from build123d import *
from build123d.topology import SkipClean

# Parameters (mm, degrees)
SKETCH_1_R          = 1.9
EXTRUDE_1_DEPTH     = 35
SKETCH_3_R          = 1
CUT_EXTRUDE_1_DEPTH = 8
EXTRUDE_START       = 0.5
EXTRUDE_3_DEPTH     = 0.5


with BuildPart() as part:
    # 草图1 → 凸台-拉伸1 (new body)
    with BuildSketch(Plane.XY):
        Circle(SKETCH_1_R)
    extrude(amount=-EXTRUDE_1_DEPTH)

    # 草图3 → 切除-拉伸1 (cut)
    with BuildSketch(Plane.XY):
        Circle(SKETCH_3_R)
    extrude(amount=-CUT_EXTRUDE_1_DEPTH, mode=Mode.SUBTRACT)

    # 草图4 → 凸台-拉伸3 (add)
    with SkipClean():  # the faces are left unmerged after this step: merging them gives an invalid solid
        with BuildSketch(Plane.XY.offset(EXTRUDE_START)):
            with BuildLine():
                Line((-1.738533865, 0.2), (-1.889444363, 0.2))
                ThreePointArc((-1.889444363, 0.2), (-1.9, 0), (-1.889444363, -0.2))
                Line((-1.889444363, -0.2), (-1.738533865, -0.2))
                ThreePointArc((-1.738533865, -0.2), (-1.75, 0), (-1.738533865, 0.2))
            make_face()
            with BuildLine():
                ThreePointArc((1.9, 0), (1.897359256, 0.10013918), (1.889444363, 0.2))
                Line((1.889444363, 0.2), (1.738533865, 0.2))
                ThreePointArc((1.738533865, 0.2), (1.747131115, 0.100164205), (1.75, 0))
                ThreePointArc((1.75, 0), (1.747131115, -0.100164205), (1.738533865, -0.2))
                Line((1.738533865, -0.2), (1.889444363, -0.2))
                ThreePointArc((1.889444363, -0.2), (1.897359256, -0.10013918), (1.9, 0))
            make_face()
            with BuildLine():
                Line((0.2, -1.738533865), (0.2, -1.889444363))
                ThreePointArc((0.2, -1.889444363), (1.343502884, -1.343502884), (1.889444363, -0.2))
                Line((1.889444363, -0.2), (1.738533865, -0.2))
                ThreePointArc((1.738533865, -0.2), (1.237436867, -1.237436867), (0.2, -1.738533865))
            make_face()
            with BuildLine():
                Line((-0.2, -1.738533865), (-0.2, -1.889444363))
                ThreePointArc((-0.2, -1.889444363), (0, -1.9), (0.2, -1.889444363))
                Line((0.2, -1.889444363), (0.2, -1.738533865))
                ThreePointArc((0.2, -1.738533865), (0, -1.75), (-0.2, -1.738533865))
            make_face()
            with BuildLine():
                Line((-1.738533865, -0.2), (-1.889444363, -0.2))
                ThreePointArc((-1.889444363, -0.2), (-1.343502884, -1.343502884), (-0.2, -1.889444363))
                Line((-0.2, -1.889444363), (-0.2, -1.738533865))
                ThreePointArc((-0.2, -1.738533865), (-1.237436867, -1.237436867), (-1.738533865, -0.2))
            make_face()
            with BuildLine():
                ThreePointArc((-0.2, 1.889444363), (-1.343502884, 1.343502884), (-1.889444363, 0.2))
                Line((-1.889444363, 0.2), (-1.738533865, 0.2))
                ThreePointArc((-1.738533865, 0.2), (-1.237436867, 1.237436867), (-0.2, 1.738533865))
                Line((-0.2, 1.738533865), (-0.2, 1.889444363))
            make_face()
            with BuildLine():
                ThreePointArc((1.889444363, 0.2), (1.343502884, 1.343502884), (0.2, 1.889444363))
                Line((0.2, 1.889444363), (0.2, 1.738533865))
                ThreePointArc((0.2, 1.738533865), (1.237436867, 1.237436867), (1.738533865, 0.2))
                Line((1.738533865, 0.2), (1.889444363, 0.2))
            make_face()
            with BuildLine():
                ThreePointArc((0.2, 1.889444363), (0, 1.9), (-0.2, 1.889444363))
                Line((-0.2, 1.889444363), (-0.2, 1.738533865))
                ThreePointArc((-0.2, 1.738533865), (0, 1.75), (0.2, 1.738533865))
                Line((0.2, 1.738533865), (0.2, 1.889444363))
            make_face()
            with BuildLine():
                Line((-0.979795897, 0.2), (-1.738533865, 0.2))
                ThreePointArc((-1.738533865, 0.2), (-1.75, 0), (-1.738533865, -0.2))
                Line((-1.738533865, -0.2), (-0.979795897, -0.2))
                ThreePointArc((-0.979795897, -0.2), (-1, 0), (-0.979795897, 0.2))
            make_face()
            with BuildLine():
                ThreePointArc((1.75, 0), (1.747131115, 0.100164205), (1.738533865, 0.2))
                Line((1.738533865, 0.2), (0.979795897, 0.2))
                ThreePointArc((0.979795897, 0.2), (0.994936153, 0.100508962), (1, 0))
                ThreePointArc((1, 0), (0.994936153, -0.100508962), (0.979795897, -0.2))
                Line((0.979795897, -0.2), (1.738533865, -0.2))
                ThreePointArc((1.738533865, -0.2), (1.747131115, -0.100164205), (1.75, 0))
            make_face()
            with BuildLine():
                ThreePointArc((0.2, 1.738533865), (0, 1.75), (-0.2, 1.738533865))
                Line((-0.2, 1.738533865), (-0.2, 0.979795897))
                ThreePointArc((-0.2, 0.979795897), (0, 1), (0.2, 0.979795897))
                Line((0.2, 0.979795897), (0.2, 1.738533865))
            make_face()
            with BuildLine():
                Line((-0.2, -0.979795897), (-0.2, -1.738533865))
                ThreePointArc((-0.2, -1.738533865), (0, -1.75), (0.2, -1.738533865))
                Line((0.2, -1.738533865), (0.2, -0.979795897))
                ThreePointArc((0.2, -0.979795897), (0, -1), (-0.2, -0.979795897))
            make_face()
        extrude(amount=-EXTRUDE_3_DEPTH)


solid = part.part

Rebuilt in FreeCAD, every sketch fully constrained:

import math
import FreeCAD as App
import Part
import Sketcher
from FreeCAD import Vector
Q = App.Units.Quantity

doc = App.newDocument("Part")
body = doc.addObject("PartDesign::Body", "Body")

# Sketch on XY plane
sketch1 = body.newObject("Sketcher::SketchObject", "Sketch")
sketch1.AttachmentSupport = (doc.getObject("XY_Plane"), [""])
sketch1.MapMode = "FlatFace"
sketch1.addGeometry(Part.Circle(Vector(0, 0, 0), Vector(0, 0, 1), 1.9), False)
sketch1.addConstraint(Sketcher.Constraint("Coincident", 0, 3, -1, 1))
sketch1.addConstraint(Sketcher.Constraint("Diameter", 0, Q("3.8 mm")))
pad1 = body.newObject("PartDesign::Pad", "Pad")
pad1.Profile = sketch1
pad1.Length = 35
pad1.Reversed = True

# Sketch on XY plane
sketch2 = body.newObject("Sketcher::SketchObject", "Sketch001")
sketch2.AttachmentSupport = (doc.getObject("XY_Plane"), [""])
sketch2.MapMode = "FlatFace"
sketch2.addGeometry(Part.Circle(Vector(0, 0, 0), Vector(0, 0, 1), 1), False)
sketch2.addConstraint(Sketcher.Constraint("Coincident", 0, 3, -1, 1))
sketch2.addConstraint(Sketcher.Constraint("Diameter", 0, Q("2 mm")))
pocket1 = body.newObject("PartDesign::Pocket", "Pocket")
pocket1.Profile = sketch2
pocket1.Length = 8

# Sketch on XY plane
sketch3 = body.newObject("Sketcher::SketchObject", "Sketch002")
sketch3.AttachmentSupport = (doc.getObject("XY_Plane"), [""])
sketch3.MapMode = "FlatFace"
sketch3.AttachmentOffset = App.Placement(Vector(0, 0, 0.5), App.Rotation())
sketch3.addGeometry(Part.LineSegment(Vector(-1.74, 0.2, 0), Vector(-1.89, 0.2, 0)), False)
sketch3.addGeometry(Part.ArcOfCircle(Part.Circle(Vector(0, 0, 0), Vector(0, 0, 1), 1.9), math.radians(173.96), math.radians(186.04)), False)
sketch3.addGeometry(Part.LineSegment(Vector(-1.89, -0.2, 0), Vector(-1.74, -0.2, 0)), False)
sketch3.addGeometry(Part.ArcOfCircle(Part.Circle(Vector(0, 0, 0), Vector(0, 0, 1), 1.75), math.radians(173.44), math.radians(186.56)), False)
sketch3.addGeometry(Part.ArcOfCircle(Part.Circle(Vector(0, 0, 0), Vector(0, 0, 1), 1.9), math.radians(0), math.radians(6.04)), False)
sketch3.addGeometry(Part.LineSegment(Vector(1.89, 0.2, 0), Vector(1.74, 0.2, 0)), False)
sketch3.addGeometry(Part.ArcOfCircle(Part.Circle(Vector(0, 0, 0), Vector(0, 0, 1), 1.75), math.radians(0), math.radians(6.56)), False)
sketch3.addGeometry(Part.ArcOfCircle(Part.Circle(Vector(0, 0, 0), Vector(0, 0, 1), 1.75), math.radians(-6.56), math.radians(0)), False)
sketch3.addGeometry(Part.LineSegment(Vector(1.74, -0.2, 0), Vector(1.89, -0.2, 0)), False)
sketch3.addGeometry(Part.ArcOfCircle(Part.Circle(Vector(0, 0, 0), Vector(0, 0, 1), 1.9), math.radians(-6.04), math.radians(0)), False)
sketch3.addGeometry(Part.LineSegment(Vector(0.2, -1.74, 0), Vector(0.2, -1.89, 0)), False)
sketch3.addGeometry(Part.ArcOfCircle(Part.Circle(Vector(0, 0, 0), Vector(0, 0, 1), 1.9), math.radians(-84), math.radians(-6)), False)
sketch3.addGeometry(Part.LineSegment(Vector(1.89, -0.2, 0), Vector(1.74, -0.2, 0)), False)
sketch3.addGeometry(Part.ArcOfCircle(Part.Circle(Vector(0, 0, 0), Vector(0, 0, 1), 1.75), math.radians(-83), math.radians(-7)), False)
sketch3.addGeometry(Part.LineSegment(Vector(-0.2, -1.74, 0), Vector(-0.2, -1.89, 0)), False)
sketch3.addGeometry(Part.ArcOfCircle(Part.Circle(Vector(0, 0, 0), Vector(0, 0, 1), 1.9), math.radians(-96.04), math.radians(-83.96)), False)
sketch3.addGeometry(Part.LineSegment(Vector(0.2, -1.89, 0), Vector(0.2, -1.74, 0)), False)
sketch3.addGeometry(Part.ArcOfCircle(Part.Circle(Vector(0, 0, 0), Vector(0, 0, 1), 1.75), math.radians(-96.56), math.radians(-83.44)), False)
sketch3.addGeometry(Part.LineSegment(Vector(-1.74, -0.2, 0), Vector(-1.89, -0.2, 0)), False)
sketch3.addGeometry(Part.ArcOfCircle(Part.Circle(Vector(0, 0, 0), Vector(0, 0, 1), 1.9), math.radians(-174), math.radians(-96)), False)
sketch3.addGeometry(Part.LineSegment(Vector(-0.2, -1.89, 0), Vector(-0.2, -1.74, 0)), False)
sketch3.addGeometry(Part.ArcOfCircle(Part.Circle(Vector(0, 0, 0), Vector(0, 0, 1), 1.75), math.radians(-173), math.radians(-97)), False)
sketch3.addGeometry(Part.ArcOfCircle(Part.Circle(Vector(0, 0, 0), Vector(0, 0, 1), 1.9), math.radians(96), math.radians(174)), False)
sketch3.addGeometry(Part.LineSegment(Vector(-1.89, 0.2, 0), Vector(-1.74, 0.2, 0)), False)
sketch3.addGeometry(Part.ArcOfCircle(Part.Circle(Vector(0, 0, 0), Vector(0, 0, 1), 1.75), math.radians(97), math.radians(173)), False)
sketch3.addGeometry(Part.LineSegment(Vector(-0.2, 1.74, 0), Vector(-0.2, 1.89, 0)), False)
sketch3.addGeometry(Part.ArcOfCircle(Part.Circle(Vector(0, 0, 0), Vector(0, 0, 1), 1.9), math.radians(6), math.radians(84)), False)
sketch3.addGeometry(Part.LineSegment(Vector(0.2, 1.89, 0), Vector(0.2, 1.74, 0)), False)
sketch3.addGeometry(Part.ArcOfCircle(Part.Circle(Vector(0, 0, 0), Vector(0, 0, 1), 1.75), math.radians(7), math.radians(83)), False)
sketch3.addGeometry(Part.LineSegment(Vector(1.74, 0.2, 0), Vector(1.89, 0.2, 0)), False)
sketch3.addGeometry(Part.ArcOfCircle(Part.Circle(Vector(0, 0, 0), Vector(0, 0, 1), 1.9), math.radians(83.96), math.radians(96.04)), False)
sketch3.addGeometry(Part.LineSegment(Vector(-0.2, 1.89, 0), Vector(-0.2, 1.74, 0)), False)
sketch3.addGeometry(Part.ArcOfCircle(Part.Circle(Vector(0, 0, 0), Vector(0, 0, 1), 1.75), math.radians(83.44), math.radians(96.56)), False)
sketch3.addGeometry(Part.LineSegment(Vector(0.2, 1.74, 0), Vector(0.2, 1.89, 0)), False)
sketch3.addGeometry(Part.LineSegment(Vector(-0.98, 0.2, 0), Vector(-1.74, 0.2, 0)), False)
sketch3.addGeometry(Part.ArcOfCircle(Part.Circle(Vector(0, 0, 0), Vector(0, 0, 1), 1.75), math.radians(173.44), math.radians(186.56)), False)
sketch3.addGeometry(Part.LineSegment(Vector(-1.74, -0.2, 0), Vector(-0.98, -0.2, 0)), False)
sketch3.addGeometry(Part.ArcOfCircle(Part.Circle(Vector(0, 0, 0), Vector(0, 0, 1), 1), math.radians(168), math.radians(192)), False)
sketch3.addGeometry(Part.ArcOfCircle(Part.Circle(Vector(0, 0, 0), Vector(0, 0, 1), 1.75), math.radians(0), math.radians(6.56)), False)
sketch3.addGeometry(Part.LineSegment(Vector(1.74, 0.2, 0), Vector(0.98, 0.2, 0)), False)
sketch3.addGeometry(Part.ArcOfCircle(Part.Circle(Vector(0, 0, 0), Vector(0, 0, 1), 1), math.radians(0), math.radians(11.54)), False)
sketch3.addGeometry(Part.ArcOfCircle(Part.Circle(Vector(0, 0, 0), Vector(0, 0, 1), 1), math.radians(-11.54), math.radians(0)), False)
sketch3.addGeometry(Part.LineSegment(Vector(0.98, -0.2, 0), Vector(1.74, -0.2, 0)), False)
sketch3.addGeometry(Part.ArcOfCircle(Part.Circle(Vector(0, 0, 0), Vector(0, 0, 1), 1.75), math.radians(-6.56), math.radians(0)), False)
sketch3.addGeometry(Part.ArcOfCircle(Part.Circle(Vector(0, 0, 0), Vector(0, 0, 1), 1.75), math.radians(83.44), math.radians(96.56)), False)
sketch3.addGeometry(Part.LineSegment(Vector(-0.2, 1.74, 0), Vector(-0.2, 0.98, 0)), False)
sketch3.addGeometry(Part.ArcOfCircle(Part.Circle(Vector(0, 0, 0), Vector(0, 0, 1), 1), math.radians(78), math.radians(102)), False)
sketch3.addGeometry(Part.LineSegment(Vector(0.2, 0.98, 0), Vector(0.2, 1.74, 0)), False)
sketch3.addGeometry(Part.LineSegment(Vector(-0.2, -0.98, 0), Vector(-0.2, -1.74, 0)), False)
sketch3.addGeometry(Part.ArcOfCircle(Part.Circle(Vector(0, 0, 0), Vector(0, 0, 1), 1.75), math.radians(-96.56), math.radians(-83.44)), False)
sketch3.addGeometry(Part.LineSegment(Vector(0.2, -1.74, 0), Vector(0.2, -0.98, 0)), False)
sketch3.addGeometry(Part.ArcOfCircle(Part.Circle(Vector(0, 0, 0), Vector(0, 0, 1), 1), math.radians(-102), math.radians(-78)), False)
sketch3.addConstraint(Sketcher.Constraint("Coincident", 0, 2, 1, 1))
sketch3.addConstraint(Sketcher.Constraint("Coincident", 1, 2, 2, 1))
sketch3.addConstraint(Sketcher.Constraint("Coincident", 2, 2, 3, 2))
sketch3.addConstraint(Sketcher.Constraint("Coincident", 3, 1, 0, 1))
sketch3.addConstraint(Sketcher.Constraint("Coincident", 4, 2, 5, 1))
sketch3.addConstraint(Sketcher.Constraint("Coincident", 5, 2, 6, 2))
sketch3.addConstraint(Sketcher.Constraint("Tangent", 6, 1, 7, 2))
sketch3.addConstraint(Sketcher.Constraint("Coincident", 7, 1, 8, 1))
sketch3.addConstraint(Sketcher.Constraint("Coincident", 8, 2, 9, 1))
sketch3.addConstraint(Sketcher.Constraint("Tangent", 9, 2, 4, 1))
sketch3.addConstraint(Sketcher.Constraint("Coincident", 10, 2, 11, 1))
sketch3.addConstraint(Sketcher.Constraint("Coincident", 11, 2, 12, 1))
sketch3.addConstraint(Sketcher.Constraint("Coincident", 12, 2, 13, 2))
sketch3.addConstraint(Sketcher.Constraint("Coincident", 13, 1, 10, 1))
sketch3.addConstraint(Sketcher.Constraint("Coincident", 14, 2, 15, 1))
sketch3.addConstraint(Sketcher.Constraint("Coincident", 15, 2, 16, 1))
sketch3.addConstraint(Sketcher.Constraint("Coincident", 16, 2, 17, 2))
sketch3.addConstraint(Sketcher.Constraint("Coincident", 17, 1, 14, 1))
sketch3.addConstraint(Sketcher.Constraint("Coincident", 18, 2, 19, 1))
sketch3.addConstraint(Sketcher.Constraint("Coincident", 19, 2, 20, 1))
sketch3.addConstraint(Sketcher.Constraint("Coincident", 20, 2, 21, 2))
sketch3.addConstraint(Sketcher.Constraint("Coincident", 21, 1, 18, 1))
sketch3.addConstraint(Sketcher.Constraint("Coincident", 22, 2, 23, 1))
sketch3.addConstraint(Sketcher.Constraint("Coincident", 23, 2, 24, 2))
sketch3.addConstraint(Sketcher.Constraint("Coincident", 24, 1, 25, 1))
sketch3.addConstraint(Sketcher.Constraint("Coincident", 25, 2, 22, 1))
sketch3.addConstraint(Sketcher.Constraint("Coincident", 26, 2, 27, 1))
sketch3.addConstraint(Sketcher.Constraint("Coincident", 27, 2, 28, 2))
sketch3.addConstraint(Sketcher.Constraint("Coincident", 28, 1, 29, 1))
sketch3.addConstraint(Sketcher.Constraint("Coincident", 29, 2, 26, 1))
sketch3.addConstraint(Sketcher.Constraint("Coincident", 30, 2, 31, 1))
sketch3.addConstraint(Sketcher.Constraint("Coincident", 31, 2, 32, 2))
sketch3.addConstraint(Sketcher.Constraint("Coincident", 32, 1, 33, 1))
sketch3.addConstraint(Sketcher.Constraint("Coincident", 33, 2, 30, 1))
sketch3.addConstraint(Sketcher.Constraint("Coincident", 34, 2, 35, 1))
sketch3.addConstraint(Sketcher.Constraint("Coincident", 35, 2, 36, 1))
sketch3.addConstraint(Sketcher.Constraint("Coincident", 36, 2, 37, 2))
sketch3.addConstraint(Sketcher.Constraint("Coincident", 37, 1, 34, 1))
sketch3.addConstraint(Sketcher.Constraint("Coincident", 38, 2, 39, 1))
sketch3.addConstraint(Sketcher.Constraint("Coincident", 39, 2, 40, 2))
sketch3.addConstraint(Sketcher.Constraint("Tangent", 40, 1, 41, 2))
sketch3.addConstraint(Sketcher.Constraint("Coincident", 41, 1, 42, 1))
sketch3.addConstraint(Sketcher.Constraint("Coincident", 42, 2, 43, 1))
sketch3.addConstraint(Sketcher.Constraint("Tangent", 43, 2, 38, 1))
sketch3.addConstraint(Sketcher.Constraint("Coincident", 44, 2, 45, 1))
sketch3.addConstraint(Sketcher.Constraint("Coincident", 45, 2, 46, 2))
sketch3.addConstraint(Sketcher.Constraint("Coincident", 46, 1, 47, 1))
sketch3.addConstraint(Sketcher.Constraint("Coincident", 47, 2, 44, 1))
sketch3.addConstraint(Sketcher.Constraint("Coincident", 48, 2, 49, 1))
sketch3.addConstraint(Sketcher.Constraint("Coincident", 49, 2, 50, 1))
sketch3.addConstraint(Sketcher.Constraint("Coincident", 50, 2, 51, 2))
sketch3.addConstraint(Sketcher.Constraint("Coincident", 51, 1, 48, 1))
sketch3.addConstraint(Sketcher.Constraint("Horizontal", 0))
sketch3.addConstraint(Sketcher.Constraint("Horizontal", 2))
sketch3.addConstraint(Sketcher.Constraint("Horizontal", 5))
sketch3.addConstraint(Sketcher.Constraint("Horizontal", 8))
sketch3.addConstraint(Sketcher.Constraint("Vertical", 10))
sketch3.addConstraint(Sketcher.Constraint("Horizontal", 12))
sketch3.addConstraint(Sketcher.Constraint("Vertical", 14))
sketch3.addConstraint(Sketcher.Constraint("Vertical", 16))
sketch3.addConstraint(Sketcher.Constraint("Horizontal", 18))
sketch3.addConstraint(Sketcher.Constraint("Vertical", 20))
sketch3.addConstraint(Sketcher.Constraint("Horizontal", 23))
sketch3.addConstraint(Sketcher.Constraint("Vertical", 25))
sketch3.addConstraint(Sketcher.Constraint("Vertical", 27))
sketch3.addConstraint(Sketcher.Constraint("Horizontal", 29))
sketch3.addConstraint(Sketcher.Constraint("Vertical", 31))
sketch3.addConstraint(Sketcher.Constraint("Vertical", 33))
sketch3.addConstraint(Sketcher.Constraint("Horizontal", 34))
sketch3.addConstraint(Sketcher.Constraint("Horizontal", 36))
sketch3.addConstraint(Sketcher.Constraint("Horizontal", 39))
sketch3.addConstraint(Sketcher.Constraint("Horizontal", 42))
sketch3.addConstraint(Sketcher.Constraint("Vertical", 45))
sketch3.addConstraint(Sketcher.Constraint("Vertical", 47))
sketch3.addConstraint(Sketcher.Constraint("Vertical", 48))
sketch3.addConstraint(Sketcher.Constraint("Vertical", 50))
sketch3.addConstraint(Sketcher.Constraint("Coincident", 1, 3, -1, 1))
sketch3.addConstraint(Sketcher.Constraint("Coincident", 3, 3, -1, 1))
sketch3.addConstraint(Sketcher.Constraint("Coincident", 4, 3, -1, 1))
sketch3.addConstraint(Sketcher.Constraint("Coincident", 6, 3, -1, 1))
sketch3.addConstraint(Sketcher.Constraint("Coincident", 11, 3, -1, 1))
sketch3.addConstraint(Sketcher.Constraint("Coincident", 13, 3, -1, 1))
sketch3.addConstraint(Sketcher.Constraint("Coincident", 15, 3, -1, 1))
sketch3.addConstraint(Sketcher.Constraint("Coincident", 17, 3, -1, 1))
sketch3.addConstraint(Sketcher.Constraint("Coincident", 19, 3, -1, 1))
sketch3.addConstraint(Sketcher.Constraint("Coincident", 21, 3, -1, 1))
sketch3.addConstraint(Sketcher.Constraint("Coincident", 22, 3, -1, 1))
sketch3.addConstraint(Sketcher.Constraint("Coincident", 24, 3, -1, 1))
sketch3.addConstraint(Sketcher.Constraint("Coincident", 26, 3, -1, 1))
sketch3.addConstraint(Sketcher.Constraint("Coincident", 28, 3, -1, 1))
sketch3.addConstraint(Sketcher.Constraint("Coincident", 30, 3, -1, 1))
sketch3.addConstraint(Sketcher.Constraint("Coincident", 32, 3, -1, 1))
sketch3.addConstraint(Sketcher.Constraint("Coincident", 35, 3, -1, 1))
sketch3.addConstraint(Sketcher.Constraint("Coincident", 37, 3, -1, 1))
sketch3.addConstraint(Sketcher.Constraint("Coincident", 38, 3, -1, 1))
sketch3.addConstraint(Sketcher.Constraint("Coincident", 40, 3, -1, 1))
sketch3.addConstraint(Sketcher.Constraint("Coincident", 44, 3, -1, 1))
sketch3.addConstraint(Sketcher.Constraint("Coincident", 46, 3, -1, 1))
sketch3.addConstraint(Sketcher.Constraint("Coincident", 49, 3, -1, 1))
sketch3.addConstraint(Sketcher.Constraint("Coincident", 51, 3, -1, 1))
sketch3.addConstraint(Sketcher.Constraint("Coincident", 11, 2, 8, 2))
sketch3.addConstraint(Sketcher.Constraint("Coincident", 15, 2, 10, 2))
sketch3.addConstraint(Sketcher.Constraint("Coincident", 18, 2, 1, 2))
sketch3.addConstraint(Sketcher.Constraint("Coincident", 19, 2, 14, 2))
sketch3.addConstraint(Sketcher.Constraint("Coincident", 22, 2, 0, 2))
sketch3.addConstraint(Sketcher.Constraint("Coincident", 28, 1, 5, 2))
sketch3.addConstraint(Sketcher.Constraint("Coincident", 30, 2, 25, 2))
sketch3.addConstraint(Sketcher.Constraint("Coincident", 32, 1, 27, 2))
sketch3.addConstraint(Sketcher.Constraint("Coincident", 34, 2, 3, 1))
sketch3.addConstraint(Sketcher.Constraint("Coincident", 38, 2, 5, 2))
sketch3.addConstraint(Sketcher.Constraint("Coincident", 42, 2, 7, 1))
sketch3.addConstraint(Sketcher.Constraint("Coincident", 44, 2, 24, 1))
sketch3.addConstraint(Sketcher.Constraint("Coincident", 47, 2, 27, 2))
sketch3.addConstraint(Sketcher.Constraint("Coincident", 48, 2, 17, 1))
sketch3.addConstraint(Sketcher.Constraint("Coincident", 49, 2, 13, 1))
sketch3.addConstraint(Sketcher.Constraint("Equal", 1, 4))
sketch3.addConstraint(Sketcher.Constraint("Equal", 3, 6))
sketch3.addConstraint(Sketcher.Constraint("Equal", 6, 7))
sketch3.addConstraint(Sketcher.Constraint("Equal", 7, 13))
sketch3.addConstraint(Sketcher.Constraint("Equal", 17, 21))
sketch3.addConstraint(Sketcher.Constraint("Equal", 22, 26))
sketch3.addConstraint(Sketcher.Constraint("Equal", 37, 40))
sketch3.addConstraint(Sketcher.Constraint("Equal", 40, 41))
sketch3.addConstraint(Sketcher.Constraint("Equal", 41, 46))
sketch3.addConstraint(Sketcher.Constraint("Equal", 46, 51))
sketch3.addConstraint(Sketcher.Constraint("PointOnObject", 6, 1, -1))
sketch3.addConstraint(Sketcher.Constraint("PointOnObject", 9, 2, -1))
sketch3.addConstraint(Sketcher.Constraint("PointOnObject", 40, 1, -1))
sketch3.addConstraint(Sketcher.Constraint("PointOnObject", 43, 2, -1))
sketch3.addConstraint(Sketcher.Constraint("Horizontal", 3, 1, 4, 2))
sketch3.addConstraint(Sketcher.Constraint("Horizontal", 2, 2, 7, 1))
sketch3.addConstraint(Sketcher.Constraint("Horizontal", 10, 2, 14, 2))
sketch3.addConstraint(Sketcher.Constraint("Horizontal", 25, 2, 26, 2))
sketch3.addConstraint(Sketcher.Constraint("Horizontal", 18, 2, 35, 2))
sketch3.addConstraint(Sketcher.Constraint("Vertical", 0, 2, 1, 2))
sketch3.addConstraint(Sketcher.Constraint("Vertical", 20, 2, 24, 1))
sketch3.addConstraint(Sketcher.Constraint("Equal", 42, 45))
sketch3.addConstraint(Sketcher.Constraint("Radius", 37, Q("1 mm")))
sketch3.addConstraint(Sketcher.Constraint("Radius", 1, Q("1.9 mm")))
sketch3.addConstraint(Sketcher.Constraint("Radius", 3, Q("1.75 mm")))
sketch3.addConstraint(Sketcher.Constraint("DistanceY", -1, 1, 0, 2, Q("0.2 mm")))
pad2 = body.newObject("PartDesign::Pad", "Pad001")
pad2.Profile = sketch3
pad2.Length = 0.5
pad2.Reversed = True

doc.recompute()
